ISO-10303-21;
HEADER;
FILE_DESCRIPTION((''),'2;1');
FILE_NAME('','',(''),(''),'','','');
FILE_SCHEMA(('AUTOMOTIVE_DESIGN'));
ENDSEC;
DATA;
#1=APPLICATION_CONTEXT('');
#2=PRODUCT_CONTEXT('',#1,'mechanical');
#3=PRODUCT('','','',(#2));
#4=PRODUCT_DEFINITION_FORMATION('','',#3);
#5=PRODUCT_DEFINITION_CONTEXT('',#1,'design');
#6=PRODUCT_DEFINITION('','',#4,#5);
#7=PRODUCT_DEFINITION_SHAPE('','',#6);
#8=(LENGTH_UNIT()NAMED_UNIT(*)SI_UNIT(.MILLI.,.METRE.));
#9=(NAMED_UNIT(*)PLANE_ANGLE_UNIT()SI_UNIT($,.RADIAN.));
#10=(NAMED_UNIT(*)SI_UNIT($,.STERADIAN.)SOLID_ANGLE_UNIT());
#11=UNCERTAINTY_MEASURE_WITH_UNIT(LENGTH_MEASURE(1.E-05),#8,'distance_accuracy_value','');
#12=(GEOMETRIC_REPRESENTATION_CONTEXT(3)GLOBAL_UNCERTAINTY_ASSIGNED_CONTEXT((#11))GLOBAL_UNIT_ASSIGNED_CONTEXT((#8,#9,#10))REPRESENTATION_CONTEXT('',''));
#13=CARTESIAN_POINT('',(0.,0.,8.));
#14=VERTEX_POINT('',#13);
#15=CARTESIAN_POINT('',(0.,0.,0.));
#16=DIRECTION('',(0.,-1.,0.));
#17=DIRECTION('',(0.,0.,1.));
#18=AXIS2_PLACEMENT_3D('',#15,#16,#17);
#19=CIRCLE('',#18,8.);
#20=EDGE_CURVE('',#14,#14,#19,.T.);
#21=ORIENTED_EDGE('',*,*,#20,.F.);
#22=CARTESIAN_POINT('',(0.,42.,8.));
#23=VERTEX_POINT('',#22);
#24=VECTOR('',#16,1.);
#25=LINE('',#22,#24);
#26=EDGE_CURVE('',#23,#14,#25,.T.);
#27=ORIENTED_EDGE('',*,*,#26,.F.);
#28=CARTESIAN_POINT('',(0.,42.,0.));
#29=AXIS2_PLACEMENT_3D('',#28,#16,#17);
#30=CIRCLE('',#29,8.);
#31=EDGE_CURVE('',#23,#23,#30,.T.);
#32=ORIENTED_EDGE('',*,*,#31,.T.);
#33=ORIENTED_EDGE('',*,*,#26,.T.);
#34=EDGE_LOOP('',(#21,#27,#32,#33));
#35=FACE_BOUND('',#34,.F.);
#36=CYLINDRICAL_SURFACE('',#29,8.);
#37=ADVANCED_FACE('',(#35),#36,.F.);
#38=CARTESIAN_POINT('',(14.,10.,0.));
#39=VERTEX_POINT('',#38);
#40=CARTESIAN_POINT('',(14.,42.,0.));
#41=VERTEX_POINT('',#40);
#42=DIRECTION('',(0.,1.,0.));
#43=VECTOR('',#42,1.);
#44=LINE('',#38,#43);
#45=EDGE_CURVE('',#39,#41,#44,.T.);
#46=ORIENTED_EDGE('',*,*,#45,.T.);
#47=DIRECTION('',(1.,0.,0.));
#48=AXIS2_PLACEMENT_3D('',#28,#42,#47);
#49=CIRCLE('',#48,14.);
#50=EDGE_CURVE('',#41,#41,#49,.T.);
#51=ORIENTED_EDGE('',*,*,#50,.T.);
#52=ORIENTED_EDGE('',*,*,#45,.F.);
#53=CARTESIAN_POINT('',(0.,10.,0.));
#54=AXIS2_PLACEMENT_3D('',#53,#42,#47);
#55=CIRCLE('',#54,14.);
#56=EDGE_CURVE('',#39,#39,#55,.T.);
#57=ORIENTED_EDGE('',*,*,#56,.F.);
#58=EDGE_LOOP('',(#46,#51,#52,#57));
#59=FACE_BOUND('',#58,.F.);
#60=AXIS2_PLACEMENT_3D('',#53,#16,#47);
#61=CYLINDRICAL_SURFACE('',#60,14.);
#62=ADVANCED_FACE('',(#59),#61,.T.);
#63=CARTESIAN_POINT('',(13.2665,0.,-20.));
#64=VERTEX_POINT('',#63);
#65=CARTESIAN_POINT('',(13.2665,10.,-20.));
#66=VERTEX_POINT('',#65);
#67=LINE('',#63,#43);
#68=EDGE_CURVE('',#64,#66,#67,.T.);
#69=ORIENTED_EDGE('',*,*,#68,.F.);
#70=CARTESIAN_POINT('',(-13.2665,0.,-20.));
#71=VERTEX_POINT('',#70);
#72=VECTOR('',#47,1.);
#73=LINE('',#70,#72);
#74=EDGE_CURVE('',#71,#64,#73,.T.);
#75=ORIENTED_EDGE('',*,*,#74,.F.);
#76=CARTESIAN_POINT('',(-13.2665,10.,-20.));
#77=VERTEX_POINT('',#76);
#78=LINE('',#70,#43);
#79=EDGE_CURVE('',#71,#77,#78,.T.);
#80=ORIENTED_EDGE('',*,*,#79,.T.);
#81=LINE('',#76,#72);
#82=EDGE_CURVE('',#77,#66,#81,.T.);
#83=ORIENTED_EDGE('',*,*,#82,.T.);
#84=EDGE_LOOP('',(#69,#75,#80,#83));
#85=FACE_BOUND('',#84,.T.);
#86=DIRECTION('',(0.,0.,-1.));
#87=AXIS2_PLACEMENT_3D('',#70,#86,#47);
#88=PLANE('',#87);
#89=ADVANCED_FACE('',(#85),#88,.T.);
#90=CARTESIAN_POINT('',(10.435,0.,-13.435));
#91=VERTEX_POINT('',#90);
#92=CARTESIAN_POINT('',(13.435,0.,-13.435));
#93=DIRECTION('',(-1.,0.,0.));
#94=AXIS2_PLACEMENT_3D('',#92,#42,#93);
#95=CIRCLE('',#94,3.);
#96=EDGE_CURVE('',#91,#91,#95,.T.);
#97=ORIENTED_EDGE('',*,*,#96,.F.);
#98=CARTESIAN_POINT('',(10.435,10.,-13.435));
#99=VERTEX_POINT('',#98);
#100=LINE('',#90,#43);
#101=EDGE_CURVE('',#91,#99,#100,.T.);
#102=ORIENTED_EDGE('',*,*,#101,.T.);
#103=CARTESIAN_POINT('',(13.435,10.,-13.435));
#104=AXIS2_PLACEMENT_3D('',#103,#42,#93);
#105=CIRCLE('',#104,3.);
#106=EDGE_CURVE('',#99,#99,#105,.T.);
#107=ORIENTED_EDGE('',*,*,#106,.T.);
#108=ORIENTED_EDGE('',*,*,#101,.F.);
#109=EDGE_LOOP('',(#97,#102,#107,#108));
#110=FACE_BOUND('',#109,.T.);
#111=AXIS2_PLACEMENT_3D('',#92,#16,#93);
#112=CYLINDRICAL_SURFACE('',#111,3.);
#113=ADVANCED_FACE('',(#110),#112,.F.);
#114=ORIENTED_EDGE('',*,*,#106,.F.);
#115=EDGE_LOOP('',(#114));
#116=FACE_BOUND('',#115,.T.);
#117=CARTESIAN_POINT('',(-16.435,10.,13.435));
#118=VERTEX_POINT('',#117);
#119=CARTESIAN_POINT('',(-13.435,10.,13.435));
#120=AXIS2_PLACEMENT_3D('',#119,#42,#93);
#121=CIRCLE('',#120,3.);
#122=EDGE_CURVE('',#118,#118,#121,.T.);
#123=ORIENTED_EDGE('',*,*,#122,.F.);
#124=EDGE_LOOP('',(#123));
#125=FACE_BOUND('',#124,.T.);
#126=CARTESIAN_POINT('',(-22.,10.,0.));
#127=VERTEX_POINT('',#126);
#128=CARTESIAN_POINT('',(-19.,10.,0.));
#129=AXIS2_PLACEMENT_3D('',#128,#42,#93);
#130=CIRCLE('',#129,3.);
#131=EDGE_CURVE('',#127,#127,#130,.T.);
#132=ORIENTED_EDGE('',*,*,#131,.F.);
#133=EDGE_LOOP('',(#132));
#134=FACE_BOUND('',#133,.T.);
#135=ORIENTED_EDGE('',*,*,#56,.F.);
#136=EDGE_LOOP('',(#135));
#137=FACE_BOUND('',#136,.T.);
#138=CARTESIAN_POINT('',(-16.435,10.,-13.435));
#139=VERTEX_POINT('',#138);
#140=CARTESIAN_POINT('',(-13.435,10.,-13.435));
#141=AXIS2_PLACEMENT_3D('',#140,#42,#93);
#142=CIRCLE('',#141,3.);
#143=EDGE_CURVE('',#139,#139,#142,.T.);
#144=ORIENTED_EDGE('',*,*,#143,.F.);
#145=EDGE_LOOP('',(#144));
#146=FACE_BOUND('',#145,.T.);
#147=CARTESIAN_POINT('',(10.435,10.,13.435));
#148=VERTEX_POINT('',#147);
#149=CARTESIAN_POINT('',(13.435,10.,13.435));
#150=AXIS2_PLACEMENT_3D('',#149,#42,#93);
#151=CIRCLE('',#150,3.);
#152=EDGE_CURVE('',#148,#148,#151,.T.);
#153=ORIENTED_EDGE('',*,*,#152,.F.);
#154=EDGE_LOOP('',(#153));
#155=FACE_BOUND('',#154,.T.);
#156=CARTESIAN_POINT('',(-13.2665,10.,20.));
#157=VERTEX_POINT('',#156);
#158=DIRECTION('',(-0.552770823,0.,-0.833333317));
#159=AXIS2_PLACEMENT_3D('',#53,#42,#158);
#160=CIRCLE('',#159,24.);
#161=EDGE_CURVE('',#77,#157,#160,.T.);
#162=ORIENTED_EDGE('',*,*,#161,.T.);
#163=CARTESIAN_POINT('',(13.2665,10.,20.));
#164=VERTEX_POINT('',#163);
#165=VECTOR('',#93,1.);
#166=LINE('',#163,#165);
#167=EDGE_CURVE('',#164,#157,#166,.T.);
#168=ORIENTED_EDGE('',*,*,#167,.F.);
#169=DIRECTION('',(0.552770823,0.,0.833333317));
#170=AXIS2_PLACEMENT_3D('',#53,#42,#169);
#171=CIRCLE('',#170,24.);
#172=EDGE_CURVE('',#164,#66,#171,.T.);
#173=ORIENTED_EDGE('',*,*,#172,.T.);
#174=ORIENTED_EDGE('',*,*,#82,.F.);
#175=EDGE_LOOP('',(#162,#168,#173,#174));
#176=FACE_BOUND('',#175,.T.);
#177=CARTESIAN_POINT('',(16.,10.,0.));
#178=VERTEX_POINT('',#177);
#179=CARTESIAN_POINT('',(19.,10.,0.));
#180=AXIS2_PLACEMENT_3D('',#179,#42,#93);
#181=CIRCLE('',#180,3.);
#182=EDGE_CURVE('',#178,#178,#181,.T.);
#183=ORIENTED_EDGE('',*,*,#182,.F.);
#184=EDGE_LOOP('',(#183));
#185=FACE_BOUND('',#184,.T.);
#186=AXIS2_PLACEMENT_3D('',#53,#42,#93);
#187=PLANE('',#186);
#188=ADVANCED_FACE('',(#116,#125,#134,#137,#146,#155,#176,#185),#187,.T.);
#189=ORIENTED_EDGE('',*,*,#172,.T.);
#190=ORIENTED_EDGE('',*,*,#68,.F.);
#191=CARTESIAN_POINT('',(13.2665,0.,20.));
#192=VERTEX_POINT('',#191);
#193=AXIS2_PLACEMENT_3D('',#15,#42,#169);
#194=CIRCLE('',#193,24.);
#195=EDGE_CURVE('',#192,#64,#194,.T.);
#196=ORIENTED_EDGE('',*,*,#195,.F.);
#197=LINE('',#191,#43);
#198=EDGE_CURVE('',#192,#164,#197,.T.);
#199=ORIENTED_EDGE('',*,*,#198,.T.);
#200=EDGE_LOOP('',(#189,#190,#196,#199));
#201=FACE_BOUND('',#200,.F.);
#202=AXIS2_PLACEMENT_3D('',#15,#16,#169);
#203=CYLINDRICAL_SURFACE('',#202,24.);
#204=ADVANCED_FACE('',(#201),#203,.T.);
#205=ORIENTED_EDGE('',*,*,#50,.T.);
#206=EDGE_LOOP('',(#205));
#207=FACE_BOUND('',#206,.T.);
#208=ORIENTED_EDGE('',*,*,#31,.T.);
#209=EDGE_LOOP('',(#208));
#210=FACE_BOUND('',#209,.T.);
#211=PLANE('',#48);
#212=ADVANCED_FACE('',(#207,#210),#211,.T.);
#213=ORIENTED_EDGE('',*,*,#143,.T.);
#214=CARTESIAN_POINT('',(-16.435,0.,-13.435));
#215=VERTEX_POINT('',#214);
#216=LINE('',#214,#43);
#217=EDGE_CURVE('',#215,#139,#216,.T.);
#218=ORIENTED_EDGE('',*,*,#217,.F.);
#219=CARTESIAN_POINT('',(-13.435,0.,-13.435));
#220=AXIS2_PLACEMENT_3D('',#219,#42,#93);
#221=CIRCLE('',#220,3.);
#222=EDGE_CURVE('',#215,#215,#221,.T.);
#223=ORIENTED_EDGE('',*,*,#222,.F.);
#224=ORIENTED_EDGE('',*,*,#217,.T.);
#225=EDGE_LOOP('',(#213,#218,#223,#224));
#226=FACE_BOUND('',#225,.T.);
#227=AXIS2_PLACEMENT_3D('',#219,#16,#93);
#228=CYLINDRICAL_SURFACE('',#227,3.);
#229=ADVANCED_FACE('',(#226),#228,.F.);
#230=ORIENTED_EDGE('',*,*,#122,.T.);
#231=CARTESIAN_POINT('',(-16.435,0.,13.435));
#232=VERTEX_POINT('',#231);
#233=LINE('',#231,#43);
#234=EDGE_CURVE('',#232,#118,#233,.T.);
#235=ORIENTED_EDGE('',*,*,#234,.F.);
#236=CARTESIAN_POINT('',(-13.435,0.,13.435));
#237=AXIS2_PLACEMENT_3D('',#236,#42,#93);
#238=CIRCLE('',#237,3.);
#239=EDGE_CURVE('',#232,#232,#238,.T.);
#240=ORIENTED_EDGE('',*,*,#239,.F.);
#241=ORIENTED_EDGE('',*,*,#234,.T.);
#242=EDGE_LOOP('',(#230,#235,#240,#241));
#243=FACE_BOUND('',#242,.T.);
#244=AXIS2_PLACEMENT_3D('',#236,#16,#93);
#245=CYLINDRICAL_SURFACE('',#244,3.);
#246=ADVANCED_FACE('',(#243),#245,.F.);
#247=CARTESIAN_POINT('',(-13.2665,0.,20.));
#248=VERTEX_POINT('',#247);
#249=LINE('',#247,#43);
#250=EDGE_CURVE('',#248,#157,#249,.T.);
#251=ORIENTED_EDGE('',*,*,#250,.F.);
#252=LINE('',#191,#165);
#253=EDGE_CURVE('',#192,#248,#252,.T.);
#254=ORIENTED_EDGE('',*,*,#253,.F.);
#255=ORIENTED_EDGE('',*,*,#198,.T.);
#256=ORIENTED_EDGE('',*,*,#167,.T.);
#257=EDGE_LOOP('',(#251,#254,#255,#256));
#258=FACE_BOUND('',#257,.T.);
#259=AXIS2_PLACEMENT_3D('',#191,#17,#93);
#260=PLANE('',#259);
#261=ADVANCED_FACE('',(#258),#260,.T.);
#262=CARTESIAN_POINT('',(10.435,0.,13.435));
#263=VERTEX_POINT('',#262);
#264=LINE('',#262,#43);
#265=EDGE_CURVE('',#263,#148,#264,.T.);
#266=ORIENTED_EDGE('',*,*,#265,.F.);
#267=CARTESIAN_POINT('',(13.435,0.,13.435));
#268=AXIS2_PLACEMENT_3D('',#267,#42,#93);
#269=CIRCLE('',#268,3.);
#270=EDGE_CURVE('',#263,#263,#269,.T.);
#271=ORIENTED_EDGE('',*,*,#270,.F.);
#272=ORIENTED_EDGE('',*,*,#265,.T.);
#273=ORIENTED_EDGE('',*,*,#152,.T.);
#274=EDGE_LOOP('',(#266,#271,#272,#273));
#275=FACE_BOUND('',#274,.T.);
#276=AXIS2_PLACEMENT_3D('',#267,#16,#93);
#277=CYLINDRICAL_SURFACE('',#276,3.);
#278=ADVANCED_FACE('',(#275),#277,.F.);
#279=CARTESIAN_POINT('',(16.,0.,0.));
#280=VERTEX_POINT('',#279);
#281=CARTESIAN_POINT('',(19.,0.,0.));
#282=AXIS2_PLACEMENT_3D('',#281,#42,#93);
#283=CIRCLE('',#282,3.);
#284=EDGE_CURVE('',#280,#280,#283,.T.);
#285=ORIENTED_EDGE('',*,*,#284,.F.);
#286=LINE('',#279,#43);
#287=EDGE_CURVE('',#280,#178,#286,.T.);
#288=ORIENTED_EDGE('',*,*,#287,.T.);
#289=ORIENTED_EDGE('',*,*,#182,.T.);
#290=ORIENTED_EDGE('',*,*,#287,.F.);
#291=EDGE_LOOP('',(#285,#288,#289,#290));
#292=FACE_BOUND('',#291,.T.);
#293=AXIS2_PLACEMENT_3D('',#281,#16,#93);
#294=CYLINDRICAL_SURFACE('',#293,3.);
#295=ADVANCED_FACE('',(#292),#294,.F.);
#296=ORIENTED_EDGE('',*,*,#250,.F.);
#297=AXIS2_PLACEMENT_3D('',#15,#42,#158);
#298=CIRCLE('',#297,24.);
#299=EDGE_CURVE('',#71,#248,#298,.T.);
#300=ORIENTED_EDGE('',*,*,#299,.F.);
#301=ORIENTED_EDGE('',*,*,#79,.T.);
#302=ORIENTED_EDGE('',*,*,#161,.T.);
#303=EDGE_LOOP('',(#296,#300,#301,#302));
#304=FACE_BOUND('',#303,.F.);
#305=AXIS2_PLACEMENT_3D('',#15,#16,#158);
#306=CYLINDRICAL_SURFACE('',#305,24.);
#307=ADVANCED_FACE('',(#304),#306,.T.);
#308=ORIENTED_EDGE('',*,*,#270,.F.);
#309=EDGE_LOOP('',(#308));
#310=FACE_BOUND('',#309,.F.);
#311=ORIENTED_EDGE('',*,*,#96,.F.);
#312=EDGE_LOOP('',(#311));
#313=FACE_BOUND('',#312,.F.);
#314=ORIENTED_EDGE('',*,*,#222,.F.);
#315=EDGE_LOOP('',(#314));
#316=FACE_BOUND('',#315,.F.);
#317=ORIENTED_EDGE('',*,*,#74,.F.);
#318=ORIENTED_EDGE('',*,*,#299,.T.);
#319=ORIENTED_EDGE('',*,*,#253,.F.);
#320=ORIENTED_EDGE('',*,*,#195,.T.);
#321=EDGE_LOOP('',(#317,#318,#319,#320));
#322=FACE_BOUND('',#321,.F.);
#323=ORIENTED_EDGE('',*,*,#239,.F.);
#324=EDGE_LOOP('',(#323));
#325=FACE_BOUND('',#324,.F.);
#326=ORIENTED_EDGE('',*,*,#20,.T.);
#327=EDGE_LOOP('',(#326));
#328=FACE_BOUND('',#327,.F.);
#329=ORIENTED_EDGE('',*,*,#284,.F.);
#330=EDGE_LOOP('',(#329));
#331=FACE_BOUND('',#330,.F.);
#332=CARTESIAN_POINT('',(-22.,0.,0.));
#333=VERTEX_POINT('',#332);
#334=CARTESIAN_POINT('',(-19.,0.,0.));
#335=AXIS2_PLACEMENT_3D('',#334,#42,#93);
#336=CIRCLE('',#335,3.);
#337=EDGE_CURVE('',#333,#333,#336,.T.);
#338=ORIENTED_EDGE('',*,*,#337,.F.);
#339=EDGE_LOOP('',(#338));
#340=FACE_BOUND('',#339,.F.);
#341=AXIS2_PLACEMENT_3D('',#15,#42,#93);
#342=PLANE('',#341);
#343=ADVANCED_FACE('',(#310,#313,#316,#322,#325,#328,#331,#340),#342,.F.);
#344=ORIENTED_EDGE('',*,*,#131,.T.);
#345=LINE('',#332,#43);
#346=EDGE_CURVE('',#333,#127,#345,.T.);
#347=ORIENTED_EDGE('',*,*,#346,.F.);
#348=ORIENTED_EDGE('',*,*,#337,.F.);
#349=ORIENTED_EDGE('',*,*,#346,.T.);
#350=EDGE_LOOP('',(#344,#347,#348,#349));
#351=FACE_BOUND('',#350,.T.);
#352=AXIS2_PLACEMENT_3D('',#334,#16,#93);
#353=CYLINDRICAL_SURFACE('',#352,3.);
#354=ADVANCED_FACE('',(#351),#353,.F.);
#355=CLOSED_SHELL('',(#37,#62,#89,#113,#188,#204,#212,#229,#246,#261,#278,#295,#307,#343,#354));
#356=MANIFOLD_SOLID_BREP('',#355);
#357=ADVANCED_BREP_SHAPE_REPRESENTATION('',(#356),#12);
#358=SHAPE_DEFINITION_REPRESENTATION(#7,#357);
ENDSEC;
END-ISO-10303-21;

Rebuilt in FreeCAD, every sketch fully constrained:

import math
import FreeCAD as App
import Part
import Sketcher

doc = App.newDocument("Part")
params = doc.addObject("Spreadsheet::Sheet", "Params")
for row, (alias, value) in enumerate([
    ("sketch1_diameter", "6 mm"),
    ("sketch1_radius", "24 mm"),
    ("pad1_length", "10 mm"),
    ("sketch2_diameter", "28 mm"),
    ("pad2_length", "32 mm"),
    ("sketch3_diameter", "16 mm"),
    ("hole_diameter", "16 mm"),
], start=1):
    params.set(f"A{row}", alias)
    params.set(f"B{row}", "=" + value)
    params.setAlias(f"B{row}", alias)

body = doc.addObject("PartDesign::Body", "Body")

# Sketch on XZ plane
sketch1 = doc.addObject("Sketcher::SketchObject", "Sketch")
body.addObject(sketch1)
sketch1.AttachmentSupport = (doc.XZ_Plane, [""])
sketch1.MapMode = "FlatFace"
sketch1.addGeometry([
    Part.LineSegment(App.Vector(-13.2665, 20, 0), App.Vector(13.2665, 20, 0)),  # 0
    Part.ArcOfCircle(Part.Circle(App.Vector(0, 0, 0), App.Vector(0, 0, 1), 24), math.radians(-56.442689), math.radians(56.442689)),  # 1
    Part.LineSegment(App.Vector(13.2665, -20, 0), App.Vector(-13.2665, -20, 0)),  # 2
    Part.ArcOfCircle(Part.Circle(App.Vector(0, 0, 0), App.Vector(0, 0, 1), 24), math.radians(123.557311), math.radians(236.442689)),  # 3
    Part.Circle(App.Vector(13.435, -13.435, 0), App.Vector(0, 0, 1), 3),  # 4
    Part.Circle(App.Vector(-13.435, -13.435, 0), App.Vector(0, 0, 1), 3),  # 5
    Part.Circle(App.Vector(19, 0, 0), App.Vector(0, 0, 1), 3),  # 6
    Part.Circle(App.Vector(13.435, 13.435, 0), App.Vector(0, 0, 1), 3),  # 7
    Part.Circle(App.Vector(-19, 0, 0), App.Vector(0, 0, 1), 3),  # 8
    Part.Circle(App.Vector(-13.435, 13.435, 0), App.Vector(0, 0, 1), 3),  # 9
], False)
sketch1.addConstraint([
    Sketcher.Constraint("Coincident", 0, 2, 1, 2),
    Sketcher.Constraint("Coincident", 1, 1, 2, 1),
    Sketcher.Constraint("Coincident", 2, 2, 3, 2),
    Sketcher.Constraint("Coincident", 3, 1, 0, 1),
    Sketcher.Constraint("Horizontal", 0),
    Sketcher.Constraint("Horizontal", 2),
    Sketcher.Constraint("Coincident", 1, 3, -1, 1),
    Sketcher.Constraint("Coincident", 3, 3, -1, 1),
    Sketcher.Constraint("Equal", 1, 3),
    Sketcher.Constraint("Equal", 4, 5),
    Sketcher.Constraint("Equal", 5, 6),
    Sketcher.Constraint("Equal", 6, 7),
    Sketcher.Constraint("Equal", 7, 8),
    Sketcher.Constraint("Equal", 8, 9),
    Sketcher.Constraint("Symmetric", 5, 3, 7, 3, -1, 1),
    Sketcher.Constraint("Symmetric", 6, 3, 8, 3, -1, 1),
    Sketcher.Constraint("Symmetric", 4, 3, 9, 3, -1, 1),
    Sketcher.Constraint("Symmetric", 4, 3, 5, 3, -2),
    Sketcher.Constraint("PointOnObject", 6, 3, -1),
    Sketcher.Constraint("Vertical", 0, 2, 1, 1),
    Sketcher.Constraint("Diameter", 4, 6.0),
    Sketcher.Constraint("Radius", 1, 24.0),
    Sketcher.Constraint("DistanceX", -1, 1, 6, 3, 19.0),
    Sketcher.Constraint("DistanceY", -1, 1, 0, 2, 20.0),
    Sketcher.Constraint("DistanceX", 5, 3, 4, 3, 26.87),
    Sketcher.Constraint("DistanceY", 4, 3, 7, 3, 26.87),
])
sketch1.setExpression("Constraints[20]", "Params.sketch1_diameter")
sketch1.setExpression("Constraints[21]", "Params.sketch1_radius")
pad1 = doc.addObject("PartDesign::Pad", "Pad")
body.addObject(pad1)
pad1.Profile = sketch1
pad1.setExpression("Length", "Params.pad1_length")
pad1.Reversed = True

# Sketch on XZ plane
sketch2 = doc.addObject("Sketcher::SketchObject", "Sketch001")
body.addObject(sketch2)
sketch2.AttachmentSupport = (doc.XZ_Plane, [""])
sketch2.MapMode = "FlatFace"
sketch2.AttachmentOffset = App.Placement(App.Vector(0, 0, -10), App.Rotation())
sketch2.addGeometry(Part.Circle(App.Vector(0, 0, 0), App.Vector(0, 0, 1), 14), False)
sketch2.addConstraint([
    Sketcher.Constraint("Coincident", 0, 3, -1, 1),
    Sketcher.Constraint("Diameter", 0, 28.0),
])
sketch2.setExpression("Constraints[1]", "Params.sketch2_diameter")
pad2 = doc.addObject("PartDesign::Pad", "Pad001")
body.addObject(pad2)
pad2.Profile = sketch2
pad2.setExpression("Length", "Params.pad2_length")
pad2.Reversed = True

# Sketch on XZ plane
sketch3 = doc.addObject("Sketcher::SketchObject", "Sketch002")
body.addObject(sketch3)
sketch3.AttachmentSupport = (doc.XZ_Plane, [""])
sketch3.MapMode = "FlatFace"
sketch3.AttachmentOffset = App.Placement(App.Vector(0, 0, -42), App.Rotation())
sketch3.addGeometry(Part.Circle(App.Vector(0, 0, 0), App.Vector(0, 0, 1), 8), False)
sketch3.addConstraint([
    Sketcher.Constraint("Coincident", 0, 3, -1, 1),
    Sketcher.Constraint("Diameter", 0, 16.0),
])
sketch3.setExpression("Constraints[1]", "Params.sketch3_diameter")
doc.recompute()
hole = doc.addObject("PartDesign::Hole", "Hole")
body.addObject(hole)
hole.Profile = sketch3
hole.ThreadType = "None"
hole.setExpression("Diameter", "Params.hole_diameter")
hole.DepthType = "ThroughAll"
hole.Reversed = True

doc.recompute()
